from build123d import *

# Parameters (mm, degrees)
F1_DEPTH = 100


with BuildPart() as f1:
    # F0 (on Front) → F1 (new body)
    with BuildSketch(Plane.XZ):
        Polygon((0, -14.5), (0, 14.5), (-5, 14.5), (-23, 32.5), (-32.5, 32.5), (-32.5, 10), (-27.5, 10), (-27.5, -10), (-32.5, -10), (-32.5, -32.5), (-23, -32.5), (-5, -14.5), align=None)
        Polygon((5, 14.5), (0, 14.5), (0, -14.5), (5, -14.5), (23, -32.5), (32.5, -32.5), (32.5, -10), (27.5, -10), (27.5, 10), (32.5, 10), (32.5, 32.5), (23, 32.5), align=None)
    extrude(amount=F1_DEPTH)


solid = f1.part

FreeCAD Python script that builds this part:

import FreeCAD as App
import Part
import Sketcher

V = App.Vector
Q = App.Units.Quantity

doc = App.newDocument("Part")
params = doc.addObject("Spreadsheet::Sheet", "Params")
for row, (alias, value) in enumerate([
    ("sketch1_width", "5 mm"),
    ("sketch1_width2", "10 mm"),
    ("sketch1_height", "20 mm"),
    ("sketch1_width3", "9.5 mm"),
    ("sketch1_height2", "22.5 mm"),
    ("pad1_length", "100 mm"),
], start=1):
    params.set(f"A{row}", alias)
    params.set(f"B{row}", "=" + value)
    params.setAlias(f"B{row}", alias)

body = doc.addObject("PartDesign::Body", "Body")

# Sketch on XZ plane
sketch1 = body.newObject("Sketcher::SketchObject", "Sketch")
sketch1.AttachmentSupport = (doc.getObject("XZ_Plane"), [""])
sketch1.MapMode = "FlatFace"
sketch1.addGeometry([
    Part.LineSegment(V(-5, 14.5, 0), V(-23, 32.5, 0)),  # 0
    Part.LineSegment(V(-23, 32.5, 0), V(-32.5, 32.5, 0)),  # 1
    Part.LineSegment(V(-32.5, 32.5, 0), V(-32.5, 10, 0)),  # 2
    Part.LineSegment(V(-32.5, 10, 0), V(-27.5, 10, 0)),  # 3
    Part.LineSegment(V(-27.5, 10, 0), V(-27.5, -10, 0)),  # 4
    Part.LineSegment(V(-27.5, -10, 0), V(-32.5, -10, 0)),  # 5
    Part.LineSegment(V(-32.5, -10, 0), V(-32.5, -32.5, 0)),  # 6
    Part.LineSegment(V(-32.5, -32.5, 0), V(-23, -32.5, 0)),  # 7
    Part.LineSegment(V(-23, -32.5, 0), V(-5, -14.5, 0)),  # 8
    Part.LineSegment(V(-5, -14.5, 0), V(5, -14.5, 0)),  # 9
    Part.LineSegment(V(5, -14.5, 0), V(23, -32.5, 0)),  # 10
    Part.LineSegment(V(23, -32.5, 0), V(32.5, -32.5, 0)),  # 11
    Part.LineSegment(V(32.5, -32.5, 0), V(32.5, -10, 0)),  # 12
    Part.LineSegment(V(32.5, -10, 0), V(27.5, -10, 0)),  # 13
    Part.LineSegment(V(27.5, -10, 0), V(27.5, 10, 0)),  # 14
    Part.LineSegment(V(27.5, 10, 0), V(32.5, 10, 0)),  # 15
    Part.LineSegment(V(32.5, 10, 0), V(32.5, 32.5, 0)),  # 16
    Part.LineSegment(V(32.5, 32.5, 0), V(23, 32.5, 0)),  # 17
    Part.LineSegment(V(23, 32.5, 0), V(5, 14.5, 0)),  # 18
    Part.LineSegment(V(5, 14.5, 0), V(-5, 14.5, 0)),  # 19
], False)
sketch1.addConstraint([
    Sketcher.Constraint("Coincident", 0, 2, 1, 1),
    Sketcher.Constraint("Coincident", 1, 2, 2, 1),
    Sketcher.Constraint("Coincident", 2, 2, 3, 1),
    Sketcher.Constraint("Coincident", 3, 2, 4, 1),
    Sketcher.Constraint("Coincident", 4, 2, 5, 1),
    Sketcher.Constraint("Coincident", 5, 2, 6, 1),
    Sketcher.Constraint("Coincident", 6, 2, 7, 1),
    Sketcher.Constraint("Coincident", 7, 2, 8, 1),
    Sketcher.Constraint("Coincident", 8, 2, 9, 1),
    Sketcher.Constraint("Coincident", 9, 2, 10, 1),
    Sketcher.Constraint("Coincident", 10, 2, 11, 1),
    Sketcher.Constraint("Coincident", 11, 2, 12, 1),
    Sketcher.Constraint("Coincident", 12, 2, 13, 1),
    Sketcher.Constraint("Coincident", 13, 2, 14, 1),
    Sketcher.Constraint("Coincident", 14, 2, 15, 1),
    Sketcher.Constraint("Coincident", 15, 2, 16, 1),
    Sketcher.Constraint("Coincident", 16, 2, 17, 1),
    Sketcher.Constraint("Coincident", 17, 2, 18, 1),
    Sketcher.Constraint("Coincident", 18, 2, 19, 1),
    Sketcher.Constraint("Coincident", 19, 2, 0, 1),
    Sketcher.Constraint("Horizontal", 1),
    Sketcher.Constraint("Vertical", 2),
    Sketcher.Constraint("Horizontal", 3),
    Sketcher.Constraint("Vertical", 4),
    Sketcher.Constraint("Horizontal", 5),
    Sketcher.Constraint("Vertical", 6),
    Sketcher.Constraint("Horizontal", 7),
    Sketcher.Constraint("Horizontal", 9),
    Sketcher.Constraint("Horizontal", 11),
    Sketcher.Constraint("Vertical", 12),
    Sketcher.Constraint("Horizontal", 13),
    Sketcher.Constraint("Vertical", 14),
    Sketcher.Constraint("Horizontal", 15),
    Sketcher.Constraint("Vertical", 16),
    Sketcher.Constraint("Horizontal", 17),
    Sketcher.Constraint("Horizontal", 19),
    Sketcher.Constraint("Symmetric", 0, 2, 10, 2, -1, 1),
    Sketcher.Constraint("Symmetric", 2, 2, 12, 2, -1, 1),
    Sketcher.Constraint("Symmetric", 4, 2, 14, 2, -1, 1),
    Sketcher.Constraint("Symmetric", 6, 2, 16, 2, -1, 1),
    Sketcher.Constraint("Symmetric", 8, 2, 18, 2, -1, 1),
    Sketcher.Constraint("Symmetric", 7, 2, 10, 2, -2),
    Sketcher.Constraint("Symmetric", 5, 2, 12, 2, -2),
    Sketcher.Constraint("Perpendicular", 0, 8),
    Sketcher.Constraint("Perpendicular", 8, 10),
    Sketcher.Constraint("Perpendicular", 10, 18),
    Sketcher.Constraint("Vertical", 9, 2, 18, 2),
    Sketcher.Constraint("DistanceX", 3, 1, 3, 2, Q("5 mm")),
    Sketcher.Constraint("DistanceX", 9, 1, 9, 2, Q("10 mm")),
    Sketcher.Constraint("DistanceY", 4, 2, 4, 1, Q("20 mm")),
    Sketcher.Constraint("DistanceX", 1, 2, 1, 1, Q("9.5 mm")),
    Sketcher.Constraint("DistanceY", 2, 2, 2, 1, Q("22.5 mm")),
    Sketcher.Constraint("DistanceX", 0, 2, -1, 1, Q("23 mm")),
])
sketch1.setExpression("Constraints[47]", "Params.sketch1_width")
sketch1.setExpression("Constraints[48]", "Params.sketch1_width2")
sketch1.setExpression("Constraints[49]", "Params.sketch1_height")
sketch1.setExpression("Constraints[50]", "Params.sketch1_width3")
sketch1.setExpression("Constraints[51]", "Params.sketch1_height2")
pad1 = body.newObject("PartDesign::Pad", "Pad")
pad1.Profile = sketch1
pad1.setExpression("Length", "Params.pad1_length")

doc.recompute()
